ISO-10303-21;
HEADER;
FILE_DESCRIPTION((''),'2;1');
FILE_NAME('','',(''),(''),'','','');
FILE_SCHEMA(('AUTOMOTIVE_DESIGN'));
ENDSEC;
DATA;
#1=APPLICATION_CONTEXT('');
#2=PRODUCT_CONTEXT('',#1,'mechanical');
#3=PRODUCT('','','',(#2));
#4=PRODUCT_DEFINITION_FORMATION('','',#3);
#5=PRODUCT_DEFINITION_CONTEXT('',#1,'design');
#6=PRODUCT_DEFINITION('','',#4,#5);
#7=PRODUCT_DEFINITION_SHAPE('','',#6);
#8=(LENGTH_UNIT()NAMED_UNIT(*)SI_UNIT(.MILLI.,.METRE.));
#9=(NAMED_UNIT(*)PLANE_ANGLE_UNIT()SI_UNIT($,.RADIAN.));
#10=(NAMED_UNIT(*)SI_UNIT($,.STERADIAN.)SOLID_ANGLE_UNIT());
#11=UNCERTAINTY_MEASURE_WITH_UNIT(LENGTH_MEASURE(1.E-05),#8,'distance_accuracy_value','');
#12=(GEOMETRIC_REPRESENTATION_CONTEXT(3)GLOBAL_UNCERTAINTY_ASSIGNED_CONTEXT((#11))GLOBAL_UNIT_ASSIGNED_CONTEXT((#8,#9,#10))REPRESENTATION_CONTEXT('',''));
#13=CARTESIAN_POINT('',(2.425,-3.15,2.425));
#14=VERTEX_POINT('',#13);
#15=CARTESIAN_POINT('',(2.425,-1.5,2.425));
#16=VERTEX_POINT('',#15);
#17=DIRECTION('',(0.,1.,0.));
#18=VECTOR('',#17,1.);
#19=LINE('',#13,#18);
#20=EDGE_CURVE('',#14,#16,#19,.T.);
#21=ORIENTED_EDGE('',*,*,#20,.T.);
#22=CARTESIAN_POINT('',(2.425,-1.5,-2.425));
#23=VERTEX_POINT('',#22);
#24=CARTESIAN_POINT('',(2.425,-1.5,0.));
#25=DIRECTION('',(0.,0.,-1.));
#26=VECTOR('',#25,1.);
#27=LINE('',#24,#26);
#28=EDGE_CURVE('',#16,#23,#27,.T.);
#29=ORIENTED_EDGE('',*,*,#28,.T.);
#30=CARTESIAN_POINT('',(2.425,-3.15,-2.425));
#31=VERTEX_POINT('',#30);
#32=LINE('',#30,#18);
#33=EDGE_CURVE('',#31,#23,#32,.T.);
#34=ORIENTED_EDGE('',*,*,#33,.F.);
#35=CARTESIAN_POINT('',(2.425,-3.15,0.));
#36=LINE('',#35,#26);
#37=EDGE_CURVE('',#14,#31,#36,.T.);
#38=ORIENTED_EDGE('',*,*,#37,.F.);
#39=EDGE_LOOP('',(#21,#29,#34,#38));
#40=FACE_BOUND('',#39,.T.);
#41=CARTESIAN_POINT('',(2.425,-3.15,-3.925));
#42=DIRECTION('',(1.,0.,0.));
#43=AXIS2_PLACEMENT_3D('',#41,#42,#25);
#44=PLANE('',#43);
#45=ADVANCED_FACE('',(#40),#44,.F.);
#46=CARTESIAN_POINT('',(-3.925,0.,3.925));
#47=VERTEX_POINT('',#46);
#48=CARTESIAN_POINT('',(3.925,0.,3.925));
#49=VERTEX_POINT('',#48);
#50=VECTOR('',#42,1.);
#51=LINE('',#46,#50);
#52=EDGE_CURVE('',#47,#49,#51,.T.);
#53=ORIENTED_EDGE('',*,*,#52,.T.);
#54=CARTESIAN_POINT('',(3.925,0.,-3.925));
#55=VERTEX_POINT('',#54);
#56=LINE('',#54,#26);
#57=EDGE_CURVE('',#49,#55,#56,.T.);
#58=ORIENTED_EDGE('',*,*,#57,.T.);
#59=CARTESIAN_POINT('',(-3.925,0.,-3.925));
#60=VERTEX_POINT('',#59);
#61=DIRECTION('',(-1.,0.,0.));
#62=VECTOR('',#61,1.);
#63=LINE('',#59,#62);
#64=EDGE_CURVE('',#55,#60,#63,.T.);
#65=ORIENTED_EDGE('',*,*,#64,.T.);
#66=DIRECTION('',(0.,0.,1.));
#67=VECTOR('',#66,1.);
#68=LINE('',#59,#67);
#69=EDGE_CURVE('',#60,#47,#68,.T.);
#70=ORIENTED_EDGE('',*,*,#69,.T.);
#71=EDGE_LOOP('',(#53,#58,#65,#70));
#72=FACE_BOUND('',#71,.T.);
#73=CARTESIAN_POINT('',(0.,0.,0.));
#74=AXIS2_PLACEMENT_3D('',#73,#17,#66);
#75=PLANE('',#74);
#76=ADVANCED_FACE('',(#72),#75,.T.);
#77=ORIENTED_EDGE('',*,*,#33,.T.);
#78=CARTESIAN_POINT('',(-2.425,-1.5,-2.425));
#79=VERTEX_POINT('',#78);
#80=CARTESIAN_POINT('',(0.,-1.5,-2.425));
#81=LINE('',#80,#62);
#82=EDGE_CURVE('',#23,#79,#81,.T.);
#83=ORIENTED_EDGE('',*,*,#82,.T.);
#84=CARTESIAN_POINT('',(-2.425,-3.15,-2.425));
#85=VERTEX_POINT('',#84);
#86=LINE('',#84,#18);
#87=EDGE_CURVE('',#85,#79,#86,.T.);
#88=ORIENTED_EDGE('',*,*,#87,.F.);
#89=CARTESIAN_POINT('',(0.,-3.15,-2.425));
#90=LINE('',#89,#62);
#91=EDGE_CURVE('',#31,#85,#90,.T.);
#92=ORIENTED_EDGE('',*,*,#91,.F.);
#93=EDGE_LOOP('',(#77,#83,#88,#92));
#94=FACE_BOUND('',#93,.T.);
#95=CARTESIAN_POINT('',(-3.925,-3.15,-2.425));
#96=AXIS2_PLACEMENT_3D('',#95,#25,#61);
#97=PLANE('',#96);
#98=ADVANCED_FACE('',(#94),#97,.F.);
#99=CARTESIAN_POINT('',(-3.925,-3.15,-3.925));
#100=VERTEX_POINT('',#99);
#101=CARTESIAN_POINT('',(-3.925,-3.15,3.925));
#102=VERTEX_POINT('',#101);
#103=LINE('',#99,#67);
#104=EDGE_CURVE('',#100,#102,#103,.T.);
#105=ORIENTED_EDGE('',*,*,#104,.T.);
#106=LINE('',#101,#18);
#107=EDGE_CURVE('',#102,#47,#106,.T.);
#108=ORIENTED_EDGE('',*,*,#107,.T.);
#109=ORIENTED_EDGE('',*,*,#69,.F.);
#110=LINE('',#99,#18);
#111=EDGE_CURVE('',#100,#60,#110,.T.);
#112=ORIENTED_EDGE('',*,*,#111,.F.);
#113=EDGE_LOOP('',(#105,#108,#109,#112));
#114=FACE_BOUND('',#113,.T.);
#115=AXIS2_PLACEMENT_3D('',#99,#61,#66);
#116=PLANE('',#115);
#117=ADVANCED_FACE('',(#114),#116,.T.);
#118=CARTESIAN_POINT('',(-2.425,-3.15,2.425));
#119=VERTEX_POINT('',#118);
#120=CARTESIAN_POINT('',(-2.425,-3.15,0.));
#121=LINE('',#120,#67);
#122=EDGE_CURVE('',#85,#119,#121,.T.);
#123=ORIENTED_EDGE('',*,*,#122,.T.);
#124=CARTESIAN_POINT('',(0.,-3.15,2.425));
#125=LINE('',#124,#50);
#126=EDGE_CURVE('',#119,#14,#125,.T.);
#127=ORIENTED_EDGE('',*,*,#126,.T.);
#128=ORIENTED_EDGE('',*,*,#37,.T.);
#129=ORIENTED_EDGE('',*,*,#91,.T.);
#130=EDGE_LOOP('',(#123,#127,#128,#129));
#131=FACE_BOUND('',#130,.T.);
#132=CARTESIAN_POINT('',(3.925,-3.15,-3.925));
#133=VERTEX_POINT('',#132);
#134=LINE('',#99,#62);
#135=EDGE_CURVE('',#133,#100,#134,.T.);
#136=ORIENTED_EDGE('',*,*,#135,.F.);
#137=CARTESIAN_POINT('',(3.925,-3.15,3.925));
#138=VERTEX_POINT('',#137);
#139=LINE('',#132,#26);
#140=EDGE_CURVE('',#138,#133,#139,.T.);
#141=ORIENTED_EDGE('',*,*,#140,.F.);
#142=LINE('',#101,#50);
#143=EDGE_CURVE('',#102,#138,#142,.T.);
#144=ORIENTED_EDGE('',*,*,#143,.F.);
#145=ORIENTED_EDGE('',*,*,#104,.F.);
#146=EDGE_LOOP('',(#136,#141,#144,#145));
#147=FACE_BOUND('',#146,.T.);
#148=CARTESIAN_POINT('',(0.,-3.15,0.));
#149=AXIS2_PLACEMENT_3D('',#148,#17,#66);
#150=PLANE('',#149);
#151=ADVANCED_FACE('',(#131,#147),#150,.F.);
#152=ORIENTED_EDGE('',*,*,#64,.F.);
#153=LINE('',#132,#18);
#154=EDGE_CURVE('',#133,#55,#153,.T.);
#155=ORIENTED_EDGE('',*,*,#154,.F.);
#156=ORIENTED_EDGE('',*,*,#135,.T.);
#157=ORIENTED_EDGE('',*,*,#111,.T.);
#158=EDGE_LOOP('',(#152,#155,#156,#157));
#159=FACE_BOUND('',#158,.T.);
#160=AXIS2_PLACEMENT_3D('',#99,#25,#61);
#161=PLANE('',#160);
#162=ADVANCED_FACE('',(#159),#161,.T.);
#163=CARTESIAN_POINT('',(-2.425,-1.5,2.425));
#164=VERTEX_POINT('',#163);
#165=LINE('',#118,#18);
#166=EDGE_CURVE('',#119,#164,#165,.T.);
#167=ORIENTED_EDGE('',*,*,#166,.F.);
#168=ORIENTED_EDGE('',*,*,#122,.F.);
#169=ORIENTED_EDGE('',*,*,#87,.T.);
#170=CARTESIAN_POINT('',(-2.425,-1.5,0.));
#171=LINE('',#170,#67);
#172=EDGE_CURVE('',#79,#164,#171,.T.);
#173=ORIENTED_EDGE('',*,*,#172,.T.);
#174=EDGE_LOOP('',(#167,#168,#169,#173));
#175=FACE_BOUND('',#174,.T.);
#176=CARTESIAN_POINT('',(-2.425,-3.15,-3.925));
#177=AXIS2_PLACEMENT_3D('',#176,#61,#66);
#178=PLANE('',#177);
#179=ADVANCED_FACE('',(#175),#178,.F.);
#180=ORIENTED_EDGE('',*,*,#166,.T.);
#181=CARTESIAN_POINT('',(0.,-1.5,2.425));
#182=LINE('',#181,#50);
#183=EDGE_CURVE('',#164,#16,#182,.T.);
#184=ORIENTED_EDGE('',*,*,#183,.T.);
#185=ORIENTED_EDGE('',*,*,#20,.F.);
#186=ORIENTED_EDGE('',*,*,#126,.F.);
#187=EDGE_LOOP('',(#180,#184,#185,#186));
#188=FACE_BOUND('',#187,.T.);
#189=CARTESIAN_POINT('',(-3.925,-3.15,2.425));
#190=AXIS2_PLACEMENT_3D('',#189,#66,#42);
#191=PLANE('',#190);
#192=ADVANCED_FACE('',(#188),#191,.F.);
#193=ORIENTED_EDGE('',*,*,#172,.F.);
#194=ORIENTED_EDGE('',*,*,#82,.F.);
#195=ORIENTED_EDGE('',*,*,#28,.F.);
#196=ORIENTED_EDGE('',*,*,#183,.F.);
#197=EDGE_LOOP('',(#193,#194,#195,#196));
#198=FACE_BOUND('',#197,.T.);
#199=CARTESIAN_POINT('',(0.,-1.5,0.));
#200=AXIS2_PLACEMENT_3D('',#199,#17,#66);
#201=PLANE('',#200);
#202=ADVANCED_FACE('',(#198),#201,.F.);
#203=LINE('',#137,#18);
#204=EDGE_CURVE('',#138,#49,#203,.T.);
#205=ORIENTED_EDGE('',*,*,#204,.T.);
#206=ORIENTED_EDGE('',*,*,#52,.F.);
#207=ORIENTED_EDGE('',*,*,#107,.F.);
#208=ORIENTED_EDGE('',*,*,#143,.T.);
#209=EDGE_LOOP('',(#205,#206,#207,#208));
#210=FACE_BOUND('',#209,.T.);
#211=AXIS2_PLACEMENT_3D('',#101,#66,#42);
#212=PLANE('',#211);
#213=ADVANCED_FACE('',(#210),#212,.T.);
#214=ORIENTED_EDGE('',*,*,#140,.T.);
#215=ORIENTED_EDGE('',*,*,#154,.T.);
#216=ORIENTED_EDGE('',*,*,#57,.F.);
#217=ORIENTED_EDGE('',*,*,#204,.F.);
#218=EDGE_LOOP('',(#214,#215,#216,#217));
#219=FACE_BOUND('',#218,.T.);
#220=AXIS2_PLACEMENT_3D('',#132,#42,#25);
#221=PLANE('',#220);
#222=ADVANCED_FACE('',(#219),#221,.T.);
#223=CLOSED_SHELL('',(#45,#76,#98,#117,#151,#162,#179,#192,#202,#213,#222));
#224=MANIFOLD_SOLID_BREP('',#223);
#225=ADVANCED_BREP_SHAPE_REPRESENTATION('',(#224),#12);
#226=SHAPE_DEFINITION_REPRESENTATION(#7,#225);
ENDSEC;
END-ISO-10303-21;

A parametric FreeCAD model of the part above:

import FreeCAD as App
import Part
import Sketcher


def faces_at(feature, points):
    """Names of the faces that lie closest to the given points."""
    faces = feature.Shape.Faces
    near = lambda p: min(range(len(faces)), key=lambda i: faces[i].distToShape(Part.Vertex(*p))[0])
    return sorted({f"Face{near(p) + 1}" for p in points})


def add_polygon(sketch, points):
    """Adds a closed chain of lines whose ends are joined by coincident constraints."""
    first, n = sketch.GeometryCount, len(points)
    for a, b in zip(points, points[1:] + points[:1]):
        sketch.addGeometry(Part.LineSegment(App.Vector(*a, 0), App.Vector(*b, 0)), False)
    for i in range(n):
        sketch.addConstraint(Sketcher.Constraint("Coincident", first + i, 2, first + (i + 1) % n, 1))

doc = App.newDocument("Part")
body = doc.addObject("PartDesign::Body", "Body")

# Sketch on XZ plane
sketch1 = body.newObject("Sketcher::SketchObject", "Sketch")
sketch1.AttachmentSupport = (doc.getObject("XZ_Plane"), [""])
sketch1.MapMode = "FlatFace"
add_polygon(sketch1, [(-3.925, -3.925), (-3.925, 3.925), (3.925, 3.925), (3.925, -3.925)])  # lines 0-3
sketch1.addConstraint([
    Sketcher.Constraint("Vertical", 0),
    Sketcher.Constraint("Horizontal", 1),
    Sketcher.Constraint("Vertical", 2),
    Sketcher.Constraint("Horizontal", 3),
    Sketcher.Constraint("Symmetric", 0, 2, 2, 2, -1, 1),
    Sketcher.Constraint("Equal", 3, 0),
    Sketcher.Constraint("DistanceX", 1, 1, 1, 2, 7.85),
])
pad1 = body.newObject("PartDesign::Pad", "Pad")
pad1.Profile = sketch1
pad1.Length = 3.15
doc.recompute()

thickness = body.newObject("PartDesign::Thickness", "Thickness")
thickness.Base = (pad1, faces_at(pad1, [(0, -3.15, 0)]))
thickness.Value = 1.5
thickness.Reversed = True
thickness.Join = "Intersection"

doc.recompute()
